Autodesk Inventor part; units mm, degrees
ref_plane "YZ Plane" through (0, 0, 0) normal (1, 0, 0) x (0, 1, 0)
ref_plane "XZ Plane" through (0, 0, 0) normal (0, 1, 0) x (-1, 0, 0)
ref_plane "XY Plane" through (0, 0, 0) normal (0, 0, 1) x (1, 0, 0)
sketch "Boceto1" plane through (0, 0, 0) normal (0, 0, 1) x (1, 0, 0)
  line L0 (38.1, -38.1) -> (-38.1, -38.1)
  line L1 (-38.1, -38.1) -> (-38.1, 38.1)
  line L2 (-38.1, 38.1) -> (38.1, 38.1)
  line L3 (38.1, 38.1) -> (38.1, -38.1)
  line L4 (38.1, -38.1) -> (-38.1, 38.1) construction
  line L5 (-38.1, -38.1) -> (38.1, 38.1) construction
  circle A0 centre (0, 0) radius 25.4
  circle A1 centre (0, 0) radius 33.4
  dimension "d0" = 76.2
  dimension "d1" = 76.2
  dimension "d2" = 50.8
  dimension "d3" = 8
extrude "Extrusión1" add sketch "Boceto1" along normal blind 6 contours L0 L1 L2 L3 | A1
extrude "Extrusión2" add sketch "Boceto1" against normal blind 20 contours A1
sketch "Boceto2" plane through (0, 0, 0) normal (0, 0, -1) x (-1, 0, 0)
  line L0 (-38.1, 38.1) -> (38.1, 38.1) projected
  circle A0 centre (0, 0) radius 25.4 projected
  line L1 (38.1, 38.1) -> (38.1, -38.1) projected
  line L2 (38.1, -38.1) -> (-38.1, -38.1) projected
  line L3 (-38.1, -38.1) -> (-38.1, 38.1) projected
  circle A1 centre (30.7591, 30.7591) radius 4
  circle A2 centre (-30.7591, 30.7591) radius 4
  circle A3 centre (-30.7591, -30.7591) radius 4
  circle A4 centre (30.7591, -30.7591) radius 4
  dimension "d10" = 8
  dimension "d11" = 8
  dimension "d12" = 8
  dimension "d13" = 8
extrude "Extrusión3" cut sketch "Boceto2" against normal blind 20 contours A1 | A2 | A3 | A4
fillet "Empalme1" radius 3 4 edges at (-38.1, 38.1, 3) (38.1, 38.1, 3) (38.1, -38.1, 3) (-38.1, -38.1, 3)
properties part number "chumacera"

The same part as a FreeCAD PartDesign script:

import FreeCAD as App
import Part
import Sketcher

V = App.Vector
Q = App.Units.Quantity


def edges_at(feature, points):
    """Names of the edges that pass closest to the given points."""
    edges = feature.Shape.Edges
    near = lambda p: min(range(len(edges)), key=lambda i: edges[i].distToShape(Part.Vertex(*p))[0])
    return sorted({f"Edge{near(p) + 1}" for p in points})

doc = App.newDocument("Part")
params = doc.addObject("Spreadsheet::Sheet", "Params")
for row, (alias, value) in enumerate([
    ("sketch1_diameter", "50.8 mm"),
    ("sketch1_width", "76.2 mm"),
    ("pad1_length", "6 mm"),
    ("sketch2_diameter", "50.8 mm"),
    ("sketch2_diameter2", "66.8 mm"),
    ("pad2_length", "20 mm"),
    ("sketch3_diameter", "8 mm"),
    ("pocket1_length", "20 mm"),
    ("fillet_radius", "3 mm"),
], start=1):
    params.set(f"A{row}", alias)
    params.set(f"B{row}", "=" + value)
    params.setAlias(f"B{row}", alias)

body = doc.addObject("PartDesign::Body", "Body")

# Sketch on XY plane
sketch1 = doc.addObject("Sketcher::SketchObject", "Sketch")
body.addObject(sketch1)
sketch1.AttachmentSupport = (doc.XY_Plane, [""])
sketch1.MapMode = "FlatFace"
sketch1.addGeometry([
    Part.LineSegment(V(-38.1, -38.1, 0), V(38.1, -38.1, 0)),  # 0
    Part.LineSegment(V(38.1, -38.1, 0), V(38.1, 38.1, 0)),  # 1
    Part.LineSegment(V(38.1, 38.1, 0), V(-38.1, 38.1, 0)),  # 2
    Part.LineSegment(V(-38.1, 38.1, 0), V(-38.1, -38.1, 0)),  # 3
    Part.Circle(V(0, 0, 0), V(0, 0, 1), 25.4),  # 4
], False)
sketch1.addConstraint([
    Sketcher.Constraint("Coincident", 0, 2, 1, 1),
    Sketcher.Constraint("Coincident", 1, 2, 2, 1),
    Sketcher.Constraint("Coincident", 2, 2, 3, 1),
    Sketcher.Constraint("Coincident", 3, 2, 0, 1),
    Sketcher.Constraint("Horizontal", 0),
    Sketcher.Constraint("Vertical", 1),
    Sketcher.Constraint("Horizontal", 2),
    Sketcher.Constraint("Vertical", 3),
    Sketcher.Constraint("Coincident", 4, 3, -1, 1),
    Sketcher.Constraint("Symmetric", 0, 2, 2, 2, -1, 1),
    Sketcher.Constraint("Equal", 2, 1),
    Sketcher.Constraint("Diameter", 4, Q("50.8 mm")),
    Sketcher.Constraint("DistanceX", 0, 1, 0, 2, Q("76.2 mm")),
])
sketch1.setExpression("Constraints[11]", "Params.sketch1_diameter")
sketch1.setExpression("Constraints[12]", "Params.sketch1_width")
pad1 = doc.addObject("PartDesign::Pad", "Pad")
body.addObject(pad1)
pad1.Profile = sketch1
pad1.setExpression("Length", "Params.pad1_length")

# Sketch on XY plane
sketch2 = doc.addObject("Sketcher::SketchObject", "Sketch001")
body.addObject(sketch2)
sketch2.AttachmentSupport = (doc.XY_Plane, [""])
sketch2.MapMode = "FlatFace"
sketch2.addGeometry([
    Part.Circle(V(0, 0, 0), V(0, 0, 1), 33.4),
    Part.Circle(V(0, 0, 0), V(0, 0, 1), 25.4),
], False)
sketch2.addConstraint([
    Sketcher.Constraint("Coincident", 0, 3, -1, 1),
    Sketcher.Constraint("Coincident", 1, 3, -1, 1),
    Sketcher.Constraint("Diameter", 1, Q("50.8 mm")),
    Sketcher.Constraint("Diameter", 0, Q("66.8 mm")),
])
sketch2.setExpression("Constraints[2]", "Params.sketch2_diameter")
sketch2.setExpression("Constraints[3]", "Params.sketch2_diameter2")
pad2 = doc.addObject("PartDesign::Pad", "Pad001")
body.addObject(pad2)
pad2.Profile = sketch2
pad2.setExpression("Length", "Params.pad2_length")
pad2.Reversed = True

# Sketch on XY plane
sketch3 = doc.addObject("Sketcher::SketchObject", "Sketch002")
body.addObject(sketch3)
sketch3.AttachmentSupport = (doc.XY_Plane, [""])
sketch3.MapMode = "FlatFace"
sketch3.addGeometry([
    Part.Circle(V(-30.7591, 30.7591, 0), V(0, 0, 1), 4),
    Part.Circle(V(30.7591, 30.7591, 0), V(0, 0, 1), 4),
    Part.Circle(V(30.7591, -30.7591, 0), V(0, 0, 1), 4),
    Part.Circle(V(-30.7591, -30.7591, 0), V(0, 0, 1), 4),
], False)
sketch3.addConstraint([
    Sketcher.Constraint("Equal", 0, 1),
    Sketcher.Constraint("Equal", 1, 2),
    Sketcher.Constraint("Equal", 2, 3),
    Sketcher.Constraint("Symmetric", 0, 3, 2, 3, -1, 1),
    Sketcher.Constraint("Symmetric", 1, 3, 3, 3, -1, 1),
    Sketcher.Constraint("Symmetric", 0, 3, 1, 3, -2),
    Sketcher.Constraint("Diameter", 0, Q("8 mm")),
    Sketcher.Constraint("DistanceX", 0, 3, -1, 1, Q("30.759 mm")),
    Sketcher.Constraint("DistanceY", -1, 1, 0, 3, Q("30.759 mm")),
])
sketch3.setExpression("Constraints[6]", "Params.sketch3_diameter")
pocket1 = doc.addObject("PartDesign::Pocket", "Pocket")
body.addObject(pocket1)
pocket1.Profile = sketch3
pocket1.setExpression("Length", "Params.pocket1_length")
pocket1.Reversed = True
doc.recompute()

fillet = doc.addObject("PartDesign::Fillet", "Fillet")
body.addObject(fillet)
fillet.Base = (pocket1, edges_at(pocket1, [
    (-38.1, 38.1, 3),
    (38.1, 38.1, 3),
    (38.1, -38.1, 3),
    (-38.1, -38.1, 3),
]))
fillet.setExpression("Radius", "Params.fillet_radius")

doc.recompute()
